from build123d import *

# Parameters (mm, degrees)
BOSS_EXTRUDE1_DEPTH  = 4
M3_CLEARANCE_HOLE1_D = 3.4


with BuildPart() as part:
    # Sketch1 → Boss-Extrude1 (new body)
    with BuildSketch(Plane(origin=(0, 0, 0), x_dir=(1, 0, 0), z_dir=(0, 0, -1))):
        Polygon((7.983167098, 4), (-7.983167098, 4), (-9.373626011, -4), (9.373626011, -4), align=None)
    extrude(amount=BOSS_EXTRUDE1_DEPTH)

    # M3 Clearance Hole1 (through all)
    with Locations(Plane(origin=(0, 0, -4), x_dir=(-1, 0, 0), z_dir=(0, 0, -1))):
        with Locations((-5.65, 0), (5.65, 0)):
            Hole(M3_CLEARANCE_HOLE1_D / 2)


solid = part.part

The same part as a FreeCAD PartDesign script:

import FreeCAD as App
import Part
import Sketcher
from FreeCAD import Vector


def add_polygon(sketch, points):
    """Adds a closed chain of lines whose ends are joined by coincident constraints."""
    first, n = sketch.GeometryCount, len(points)
    for a, b in zip(points, points[1:] + points[:1]):
        sketch.addGeometry(Part.LineSegment(App.Vector(*a, 0), App.Vector(*b, 0)), False)
    for i in range(n):
        sketch.addConstraint(Sketcher.Constraint("Coincident", first + i, 2, first + (i + 1) % n, 1))

doc = App.newDocument("Part")
body = doc.addObject("PartDesign::Body", "Body")

# Sketch on XY plane
sketch1 = doc.addObject("Sketcher::SketchObject", "Sketch")
body.addObject(sketch1)
sketch1.AttachmentSupport = (doc.XY_Plane, [""])
sketch1.MapMode = "FlatFace"
add_polygon(sketch1, [(7.983167, -4), (-7.983167, -4), (-9.373626, 4), (9.373626, 4)])  # lines 0-3
sketch1.addConstraint([
    Sketcher.Constraint("Horizontal", 0),
    Sketcher.Constraint("Horizontal", 2),
    Sketcher.Constraint("Equal", 1, 3),
    Sketcher.Constraint("DistanceY", 0, 2, -1, 1, 4.0),
    Sketcher.Constraint("DistanceY", -1, 1, 1, 2, 4.0),
    Sketcher.Constraint("DistanceX", 0, 2, 0, 1, 15.966334),
    Sketcher.Constraint("DistanceX", 2, 1, 2, 2, 18.747252),
    Sketcher.Constraint("DistanceX", 0, 2, -1, 1, 7.983167),
])
pad1 = doc.addObject("PartDesign::Pad", "Pad")
body.addObject(pad1)
pad1.Profile = sketch1
pad1.Length = 4
pad1.Reversed = True

# Sketch on XY plane
sketch2 = doc.addObject("Sketcher::SketchObject", "Sketch001")
body.addObject(sketch2)
sketch2.AttachmentSupport = (doc.XY_Plane, [""])
sketch2.MapMode = "FlatFace"
sketch2.AttachmentOffset = App.Placement(Vector(0, 0, -4), App.Rotation())
sketch2.addGeometry([
    Part.Circle(Vector(5.65, 0, 0), Vector(0, 0, 1), 1.7),
    Part.Circle(Vector(-5.65, 0, 0), Vector(0, 0, 1), 1.7),
], False)
sketch2.addConstraint([
    Sketcher.Constraint("Equal", 0, 1),
    Sketcher.Constraint("Symmetric", 0, 3, 1, 3, -1, 1),
    Sketcher.Constraint("PointOnObject", 0, 3, -1),
    Sketcher.Constraint("Diameter", 0, 3.4),
    Sketcher.Constraint("DistanceX", 1, 3, 0, 3, 11.3),
])
doc.recompute()
hole = doc.addObject("PartDesign::Hole", "Hole")
body.addObject(hole)
hole.Profile = sketch2
hole.ThreadType = "None"
hole.Diameter = 3.4
hole.DepthType = "ThroughAll"
hole.Reversed = True

doc.recompute()
